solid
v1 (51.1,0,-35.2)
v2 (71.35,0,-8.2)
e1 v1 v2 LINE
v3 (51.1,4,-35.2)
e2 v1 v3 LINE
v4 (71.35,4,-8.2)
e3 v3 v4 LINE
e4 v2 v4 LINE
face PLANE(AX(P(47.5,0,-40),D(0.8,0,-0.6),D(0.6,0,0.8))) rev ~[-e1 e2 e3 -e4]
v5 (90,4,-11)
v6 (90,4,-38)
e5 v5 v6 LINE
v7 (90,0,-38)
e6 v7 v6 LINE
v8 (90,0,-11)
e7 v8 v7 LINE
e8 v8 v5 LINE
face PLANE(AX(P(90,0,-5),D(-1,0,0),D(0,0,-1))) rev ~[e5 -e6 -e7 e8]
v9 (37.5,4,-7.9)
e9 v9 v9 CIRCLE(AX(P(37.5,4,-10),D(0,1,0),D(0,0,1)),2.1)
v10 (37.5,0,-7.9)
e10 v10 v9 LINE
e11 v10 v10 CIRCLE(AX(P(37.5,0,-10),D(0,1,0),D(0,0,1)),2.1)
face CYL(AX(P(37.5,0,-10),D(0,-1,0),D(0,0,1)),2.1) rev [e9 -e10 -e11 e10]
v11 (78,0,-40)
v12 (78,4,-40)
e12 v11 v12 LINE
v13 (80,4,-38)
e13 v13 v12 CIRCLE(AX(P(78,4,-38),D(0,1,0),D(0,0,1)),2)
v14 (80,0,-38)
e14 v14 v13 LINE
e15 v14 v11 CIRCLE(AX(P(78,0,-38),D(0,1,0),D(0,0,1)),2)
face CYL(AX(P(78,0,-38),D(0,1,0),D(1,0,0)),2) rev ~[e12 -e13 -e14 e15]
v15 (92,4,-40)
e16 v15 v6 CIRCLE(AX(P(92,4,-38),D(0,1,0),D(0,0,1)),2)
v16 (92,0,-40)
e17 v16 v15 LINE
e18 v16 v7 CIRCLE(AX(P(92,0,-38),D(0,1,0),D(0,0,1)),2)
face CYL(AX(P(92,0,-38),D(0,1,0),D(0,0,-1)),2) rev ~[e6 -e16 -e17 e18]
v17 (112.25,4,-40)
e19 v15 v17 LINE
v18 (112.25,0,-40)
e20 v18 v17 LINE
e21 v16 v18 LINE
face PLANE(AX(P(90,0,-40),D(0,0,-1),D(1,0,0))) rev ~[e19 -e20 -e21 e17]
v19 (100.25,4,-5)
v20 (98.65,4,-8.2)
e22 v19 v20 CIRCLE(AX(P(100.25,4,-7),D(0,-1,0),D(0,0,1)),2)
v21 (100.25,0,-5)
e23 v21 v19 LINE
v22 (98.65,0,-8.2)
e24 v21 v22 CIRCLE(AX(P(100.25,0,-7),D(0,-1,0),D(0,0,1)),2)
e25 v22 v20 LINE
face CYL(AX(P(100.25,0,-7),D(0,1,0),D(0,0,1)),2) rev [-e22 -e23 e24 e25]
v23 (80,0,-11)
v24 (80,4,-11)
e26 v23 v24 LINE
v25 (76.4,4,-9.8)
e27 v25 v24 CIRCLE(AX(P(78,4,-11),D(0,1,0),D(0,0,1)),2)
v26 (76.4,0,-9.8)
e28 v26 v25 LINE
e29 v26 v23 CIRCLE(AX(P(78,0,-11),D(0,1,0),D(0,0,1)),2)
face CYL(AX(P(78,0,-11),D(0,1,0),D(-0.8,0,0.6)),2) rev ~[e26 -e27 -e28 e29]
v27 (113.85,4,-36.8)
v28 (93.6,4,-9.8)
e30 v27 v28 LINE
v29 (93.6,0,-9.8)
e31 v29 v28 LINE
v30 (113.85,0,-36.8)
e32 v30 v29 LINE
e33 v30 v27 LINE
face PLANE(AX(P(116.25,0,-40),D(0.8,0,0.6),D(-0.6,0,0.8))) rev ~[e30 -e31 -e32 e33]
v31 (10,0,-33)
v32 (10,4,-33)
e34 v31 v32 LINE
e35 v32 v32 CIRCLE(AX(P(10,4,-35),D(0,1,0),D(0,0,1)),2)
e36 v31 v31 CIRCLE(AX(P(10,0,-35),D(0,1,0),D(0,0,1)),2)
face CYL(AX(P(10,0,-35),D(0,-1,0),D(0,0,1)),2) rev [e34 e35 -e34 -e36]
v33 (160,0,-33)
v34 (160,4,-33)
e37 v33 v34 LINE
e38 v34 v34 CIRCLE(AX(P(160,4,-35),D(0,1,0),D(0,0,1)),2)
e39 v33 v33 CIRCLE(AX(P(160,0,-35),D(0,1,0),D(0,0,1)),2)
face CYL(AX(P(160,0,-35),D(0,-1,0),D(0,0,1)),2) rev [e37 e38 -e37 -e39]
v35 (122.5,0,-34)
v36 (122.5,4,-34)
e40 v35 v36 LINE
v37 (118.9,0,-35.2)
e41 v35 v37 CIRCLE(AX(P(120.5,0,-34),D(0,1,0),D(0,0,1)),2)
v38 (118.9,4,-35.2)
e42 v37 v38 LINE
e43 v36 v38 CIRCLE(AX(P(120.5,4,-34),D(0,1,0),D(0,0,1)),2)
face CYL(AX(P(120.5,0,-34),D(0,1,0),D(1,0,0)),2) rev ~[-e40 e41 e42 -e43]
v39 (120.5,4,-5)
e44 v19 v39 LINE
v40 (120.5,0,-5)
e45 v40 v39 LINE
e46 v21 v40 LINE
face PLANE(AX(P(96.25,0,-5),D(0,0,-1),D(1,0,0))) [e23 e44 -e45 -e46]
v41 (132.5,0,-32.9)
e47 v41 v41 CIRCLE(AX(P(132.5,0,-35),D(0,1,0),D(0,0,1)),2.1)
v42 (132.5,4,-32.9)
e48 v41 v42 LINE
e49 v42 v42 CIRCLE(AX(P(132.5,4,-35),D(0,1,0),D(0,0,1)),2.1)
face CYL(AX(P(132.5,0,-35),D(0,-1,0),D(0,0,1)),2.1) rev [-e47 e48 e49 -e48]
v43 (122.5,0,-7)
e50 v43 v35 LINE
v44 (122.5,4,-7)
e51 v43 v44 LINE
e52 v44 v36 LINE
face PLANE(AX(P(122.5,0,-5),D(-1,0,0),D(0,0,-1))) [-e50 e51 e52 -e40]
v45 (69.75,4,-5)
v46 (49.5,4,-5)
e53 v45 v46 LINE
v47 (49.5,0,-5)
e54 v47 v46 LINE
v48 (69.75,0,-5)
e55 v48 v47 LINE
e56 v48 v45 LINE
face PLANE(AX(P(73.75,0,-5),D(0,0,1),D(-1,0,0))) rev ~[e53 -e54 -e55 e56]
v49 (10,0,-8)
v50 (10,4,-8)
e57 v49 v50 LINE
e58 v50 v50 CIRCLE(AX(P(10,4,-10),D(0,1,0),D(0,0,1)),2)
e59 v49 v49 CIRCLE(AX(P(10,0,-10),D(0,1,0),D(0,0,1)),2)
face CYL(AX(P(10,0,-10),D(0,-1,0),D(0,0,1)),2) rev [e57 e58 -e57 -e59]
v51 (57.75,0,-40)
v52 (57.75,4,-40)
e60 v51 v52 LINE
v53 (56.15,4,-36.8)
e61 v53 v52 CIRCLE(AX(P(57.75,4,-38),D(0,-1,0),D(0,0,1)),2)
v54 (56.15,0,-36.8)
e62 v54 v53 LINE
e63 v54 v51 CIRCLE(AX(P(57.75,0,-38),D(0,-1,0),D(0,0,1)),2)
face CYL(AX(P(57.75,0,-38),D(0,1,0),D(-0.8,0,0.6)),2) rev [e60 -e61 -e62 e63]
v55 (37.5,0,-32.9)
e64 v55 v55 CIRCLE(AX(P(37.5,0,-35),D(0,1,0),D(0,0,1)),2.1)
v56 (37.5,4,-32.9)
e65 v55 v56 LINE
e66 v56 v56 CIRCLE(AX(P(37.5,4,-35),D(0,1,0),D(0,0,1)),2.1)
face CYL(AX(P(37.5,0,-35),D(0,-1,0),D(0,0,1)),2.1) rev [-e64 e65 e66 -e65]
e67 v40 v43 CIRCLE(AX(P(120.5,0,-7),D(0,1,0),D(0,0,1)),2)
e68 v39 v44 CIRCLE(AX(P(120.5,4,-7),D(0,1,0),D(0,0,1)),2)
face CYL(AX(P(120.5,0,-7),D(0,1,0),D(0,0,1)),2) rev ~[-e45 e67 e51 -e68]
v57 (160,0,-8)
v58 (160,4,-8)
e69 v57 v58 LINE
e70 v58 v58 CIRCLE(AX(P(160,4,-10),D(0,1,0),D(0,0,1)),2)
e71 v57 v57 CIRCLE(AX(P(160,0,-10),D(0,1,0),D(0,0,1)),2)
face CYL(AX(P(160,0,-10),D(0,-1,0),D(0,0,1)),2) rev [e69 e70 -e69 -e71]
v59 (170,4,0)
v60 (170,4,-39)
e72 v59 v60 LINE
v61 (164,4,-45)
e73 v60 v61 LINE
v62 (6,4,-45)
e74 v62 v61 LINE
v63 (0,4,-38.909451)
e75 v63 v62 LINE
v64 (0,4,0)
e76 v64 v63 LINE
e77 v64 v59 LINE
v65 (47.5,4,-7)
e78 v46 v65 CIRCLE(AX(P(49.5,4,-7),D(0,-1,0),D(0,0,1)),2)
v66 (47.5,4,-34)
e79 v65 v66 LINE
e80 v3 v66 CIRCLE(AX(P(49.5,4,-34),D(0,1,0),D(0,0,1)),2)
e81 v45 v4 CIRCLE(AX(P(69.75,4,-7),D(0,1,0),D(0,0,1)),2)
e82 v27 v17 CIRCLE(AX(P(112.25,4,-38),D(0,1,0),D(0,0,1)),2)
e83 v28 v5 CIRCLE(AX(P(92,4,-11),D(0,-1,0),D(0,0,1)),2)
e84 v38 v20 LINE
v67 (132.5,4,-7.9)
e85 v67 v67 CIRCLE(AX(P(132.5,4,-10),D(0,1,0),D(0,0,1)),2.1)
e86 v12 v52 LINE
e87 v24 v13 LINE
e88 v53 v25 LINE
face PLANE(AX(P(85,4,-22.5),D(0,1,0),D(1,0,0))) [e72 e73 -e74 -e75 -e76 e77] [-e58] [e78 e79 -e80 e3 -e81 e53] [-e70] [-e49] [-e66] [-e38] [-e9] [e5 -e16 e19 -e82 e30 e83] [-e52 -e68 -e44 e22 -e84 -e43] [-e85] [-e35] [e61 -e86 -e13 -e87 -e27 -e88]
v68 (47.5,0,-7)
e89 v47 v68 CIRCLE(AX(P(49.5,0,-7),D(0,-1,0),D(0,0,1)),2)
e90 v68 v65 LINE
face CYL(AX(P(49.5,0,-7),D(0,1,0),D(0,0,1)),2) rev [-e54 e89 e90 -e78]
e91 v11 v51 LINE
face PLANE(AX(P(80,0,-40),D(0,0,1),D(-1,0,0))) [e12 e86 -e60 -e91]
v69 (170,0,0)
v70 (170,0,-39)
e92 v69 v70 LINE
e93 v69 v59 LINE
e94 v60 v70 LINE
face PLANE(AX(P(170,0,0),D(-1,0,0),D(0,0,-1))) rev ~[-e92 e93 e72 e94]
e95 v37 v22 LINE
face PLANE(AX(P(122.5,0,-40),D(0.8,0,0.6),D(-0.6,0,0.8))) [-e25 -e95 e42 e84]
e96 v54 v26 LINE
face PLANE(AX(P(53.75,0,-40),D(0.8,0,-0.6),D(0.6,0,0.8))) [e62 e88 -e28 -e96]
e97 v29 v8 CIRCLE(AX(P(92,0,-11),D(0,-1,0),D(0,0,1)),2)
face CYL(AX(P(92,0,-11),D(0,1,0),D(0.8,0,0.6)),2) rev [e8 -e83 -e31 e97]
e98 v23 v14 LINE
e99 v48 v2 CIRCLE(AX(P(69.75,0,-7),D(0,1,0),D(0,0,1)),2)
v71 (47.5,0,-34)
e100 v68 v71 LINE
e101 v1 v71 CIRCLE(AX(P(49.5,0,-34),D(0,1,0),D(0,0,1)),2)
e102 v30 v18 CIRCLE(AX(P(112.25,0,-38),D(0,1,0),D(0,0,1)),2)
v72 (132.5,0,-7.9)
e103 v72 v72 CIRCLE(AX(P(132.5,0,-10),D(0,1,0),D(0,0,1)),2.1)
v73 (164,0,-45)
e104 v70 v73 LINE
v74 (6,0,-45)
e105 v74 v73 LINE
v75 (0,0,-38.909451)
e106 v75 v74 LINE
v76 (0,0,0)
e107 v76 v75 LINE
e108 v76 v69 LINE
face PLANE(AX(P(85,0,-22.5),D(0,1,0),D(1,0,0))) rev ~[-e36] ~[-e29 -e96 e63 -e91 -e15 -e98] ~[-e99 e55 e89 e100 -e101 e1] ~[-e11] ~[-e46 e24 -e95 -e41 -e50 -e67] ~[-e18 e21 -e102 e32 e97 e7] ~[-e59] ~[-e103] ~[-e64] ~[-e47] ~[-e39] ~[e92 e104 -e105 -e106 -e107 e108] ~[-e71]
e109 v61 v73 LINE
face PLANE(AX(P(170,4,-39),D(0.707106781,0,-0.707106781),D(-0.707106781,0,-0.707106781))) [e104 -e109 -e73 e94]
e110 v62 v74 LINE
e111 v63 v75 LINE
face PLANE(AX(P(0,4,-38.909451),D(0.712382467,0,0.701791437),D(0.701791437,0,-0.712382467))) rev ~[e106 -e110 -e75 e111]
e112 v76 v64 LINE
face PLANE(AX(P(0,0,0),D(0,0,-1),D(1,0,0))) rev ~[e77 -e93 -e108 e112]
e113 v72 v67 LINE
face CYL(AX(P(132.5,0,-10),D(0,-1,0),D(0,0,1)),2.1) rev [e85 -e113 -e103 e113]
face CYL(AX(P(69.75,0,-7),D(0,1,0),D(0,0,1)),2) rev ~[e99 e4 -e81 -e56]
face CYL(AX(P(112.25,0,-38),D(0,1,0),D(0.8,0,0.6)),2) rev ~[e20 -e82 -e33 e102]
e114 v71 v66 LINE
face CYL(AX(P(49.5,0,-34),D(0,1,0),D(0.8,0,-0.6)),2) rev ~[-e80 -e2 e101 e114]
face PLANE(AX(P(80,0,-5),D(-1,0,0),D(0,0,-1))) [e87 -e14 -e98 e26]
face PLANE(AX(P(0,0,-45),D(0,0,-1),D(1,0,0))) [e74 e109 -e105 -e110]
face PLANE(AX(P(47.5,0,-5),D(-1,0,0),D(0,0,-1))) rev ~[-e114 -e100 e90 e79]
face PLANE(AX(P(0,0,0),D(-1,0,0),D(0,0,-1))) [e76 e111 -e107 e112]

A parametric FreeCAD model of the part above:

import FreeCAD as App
import Part
import Sketcher


def edges_at(feature, points):
    """Names of the edges that pass closest to the given points."""
    edges = feature.Shape.Edges
    near = lambda p: min(range(len(edges)), key=lambda i: edges[i].distToShape(Part.Vertex(*p))[0])
    return sorted({f"Edge{near(p) + 1}" for p in points})


def add_polygon(sketch, points):
    """Adds a closed chain of lines whose ends are joined by coincident constraints."""
    first, n = sketch.GeometryCount, len(points)
    for a, b in zip(points, points[1:] + points[:1]):
        sketch.addGeometry(Part.LineSegment(App.Vector(*a, 0), App.Vector(*b, 0)), False)
    for i in range(n):
        sketch.addConstraint(Sketcher.Constraint("Coincident", first + i, 2, first + (i + 1) % n, 1))

doc = App.newDocument("Part")
body = doc.addObject("PartDesign::Body", "Body")

# Sketch on XZ plane
sketch1 = body.newObject("Sketcher::SketchObject", "Sketch")
sketch1.AttachmentSupport = (doc.getObject("XZ_Plane"), [""])
sketch1.MapMode = "FlatFace"
add_polygon(sketch1, [(0, -45), (0, 0), (170, 0), (170, -45)])  # lines 0-3
sketch1.addGeometry(Part.Circle(App.Vector(10, -10, 0), App.Vector(0, 0, 1), 2), False)  # 4
sketch1.addGeometry(Part.Circle(App.Vector(37.5, -10, 0), App.Vector(0, 0, 1), 2.1), False)  # 5
sketch1.addGeometry(Part.Circle(App.Vector(132.5, -10, 0), App.Vector(0, 0, 1), 2.1), False)  # 6
sketch1.addGeometry(Part.Circle(App.Vector(160, -10, 0), App.Vector(0, 0, 1), 2), False)  # 7
sketch1.addGeometry(Part.Circle(App.Vector(10, -35, 0), App.Vector(0, 0, 1), 2), False)  # 8
sketch1.addGeometry(Part.Circle(App.Vector(37.5, -35, 0), App.Vector(0, 0, 1), 2.1), False)  # 9
sketch1.addGeometry(Part.Circle(App.Vector(132.5, -35, 0), App.Vector(0, 0, 1), 2.1), False)  # 10
sketch1.addGeometry(Part.Circle(App.Vector(160, -35, 0), App.Vector(0, 0, 1), 2), False)  # 11
sketch1.addConstraint([
    Sketcher.Constraint("Vertical", 0),
    Sketcher.Constraint("Horizontal", 1),
    Sketcher.Constraint("Vertical", 2),
    Sketcher.Constraint("Horizontal", 3),
    Sketcher.Constraint("Coincident", 0, 2, -1, 1),
    Sketcher.Constraint("Equal", 5, 6),
    Sketcher.Constraint("Equal", 4, 7),
    Sketcher.Constraint("Equal", 7, 8),
    Sketcher.Constraint("Equal", 6, 9),
    Sketcher.Constraint("Equal", 9, 10),
    Sketcher.Constraint("Equal", 8, 11),
    Sketcher.Constraint("Horizontal", 4, 3, 5, 3),
    Sketcher.Constraint("Horizontal", 5, 3, 6, 3),
    Sketcher.Constraint("Horizontal", 6, 3, 7, 3),
    Sketcher.Constraint("Horizontal", 8, 3, 9, 3),
    Sketcher.Constraint("Horizontal", 9, 3, 10, 3),
    Sketcher.Constraint("Horizontal", 10, 3, 11, 3),
    Sketcher.Constraint("Vertical", 4, 3, 8, 3),
    Sketcher.Constraint("Vertical", 5, 3, 9, 3),
    Sketcher.Constraint("Vertical", 6, 3, 10, 3),
    Sketcher.Constraint("Vertical", 7, 3, 11, 3),
    Sketcher.Constraint("Diameter", 4, 4.0),
    Sketcher.Constraint("Diameter", 5, 4.2),
    Sketcher.Constraint("DistanceX", 1, 1, 1, 2, 170.0),
    Sketcher.Constraint("DistanceY", 0, 1, 0, 2, 45.0),
    Sketcher.Constraint("DistanceX", -1, 1, 4, 3, 10.0),
    Sketcher.Constraint("DistanceY", 4, 3, -1, 1, 10.0),
    Sketcher.Constraint("DistanceX", -1, 1, 7, 3, 160.0),
    Sketcher.Constraint("DistanceY", 8, 3, -1, 1, 35.0),
    Sketcher.Constraint("DistanceX", 5, 3, 6, 3, 95.0),
    Sketcher.Constraint("DistanceX", -1, 1, 5, 3, 37.5),
])
pad1 = body.newObject("PartDesign::Pad", "Pad")
pad1.Profile = sketch1
pad1.Length = 4
pad1.Reversed = True

# Sketch on XZ plane
sketch2 = body.newObject("Sketcher::SketchObject", "Sketch001")
sketch2.AttachmentSupport = (doc.getObject("XZ_Plane"), [""])
sketch2.MapMode = "FlatFace"
sketch2.AttachmentOffset = App.Placement(App.Vector(0, 0, -4), App.Rotation())
add_polygon(sketch2, [(0, -39), (6, -45), (0, -45)])  # lines 0-2
add_polygon(sketch2, [(164, -45), (170, -39), (170, -45)])  # lines 3-5
sketch2.addConstraint([
    Sketcher.Constraint("Horizontal", 1),
    Sketcher.Constraint("Vertical", 2),
    Sketcher.Constraint("Vertical", 4),
    Sketcher.Constraint("Horizontal", 5),
    Sketcher.Constraint("PointOnObject", 1, 2, -2),
    Sketcher.Constraint("Horizontal", 1, 2, 4, 2),
    Sketcher.Constraint("Equal", 1, 5),
    Sketcher.Constraint("Equal", 5, 4),
    Sketcher.Constraint("DistanceX", 1, 2, 1, 1, 6.0),
    Sketcher.Constraint("DistanceY", 0, 2, -1, 1, 45.0),
    Sketcher.Constraint("DistanceX", -1, 1, 3, 2, 170.0),
    Sketcher.Constraint("DistanceY", 2, 1, 2, 2, 6.090549),
])
pocket1 = body.newObject("PartDesign::Pocket", "Pocket")
pocket1.Profile = sketch2
pocket1.Length = 4
pocket1.Reversed = True

# Sketch on XZ plane
sketch3 = body.newObject("Sketcher::SketchObject", "Sketch002")
sketch3.AttachmentSupport = (doc.getObject("XZ_Plane"), [""])
sketch3.MapMode = "FlatFace"
add_polygon(sketch3, [(48, -5), (48, -40), (74, -5)])  # lines 0-2
add_polygon(sketch3, [(80, -5), (54, -40), (80, -40)])  # lines 3-5
add_polygon(sketch3, [(90, -5), (90, -40), (116, -40)])  # lines 6-8
add_polygon(sketch3, [(122, -5), (96, -5), (122, -40)])  # lines 9-11
sketch3.addConstraint([
    Sketcher.Constraint("Vertical", 0),
    Sketcher.Constraint("Horizontal", 2),
    Sketcher.Constraint("Horizontal", 4),
    Sketcher.Constraint("Vertical", 5),
    Sketcher.Constraint("Vertical", 6),
    Sketcher.Constraint("Horizontal", 7),
    Sketcher.Constraint("Horizontal", 9),
    Sketcher.Constraint("Vertical", 11),
    Sketcher.Constraint("Parallel", 1, 3),
    Sketcher.Constraint("Parallel", 8, 10),
    Sketcher.Constraint("Horizontal", 0, 2, 3, 2),
    Sketcher.Constraint("Horizontal", 2, 2, 5, 2),
    Sketcher.Constraint("Horizontal", 4, 2, 6, 2),
    Sketcher.Constraint("Horizontal", 5, 2, 8, 2),
    Sketcher.Constraint("Horizontal", 8, 2, 9, 2),
    Sketcher.Constraint("Horizontal", 7, 2, 10, 2),
    Sketcher.Constraint("Equal", 4, 7),
    Sketcher.Constraint("DistanceY", 0, 2, 0, 1, 35.0),
    Sketcher.Constraint("DistanceY", 0, 2, -1, 1, 40.0),
    Sketcher.Constraint("DistanceX", -1, 1, 4, 2, 80.0),
    Sketcher.Constraint("DistanceX", -1, 1, 6, 2, 90.0),
    Sketcher.Constraint("DistanceX", 3, 2, 1, 2, 20.0),
    Sketcher.Constraint("DistanceX", 2, 2, 2, 1, 26.25),
    Sketcher.Constraint("DistanceX", -1, 1, 10, 2, 122.5),
])
pocket2 = body.newObject("PartDesign::Pocket", "Pocket001")
pocket2.Profile = sketch3
pocket2.Length = 4
doc.recompute()

fillet = body.newObject("PartDesign::Fillet", "Fillet")
fillet.Base = (pocket2, edges_at(pocket2, [
    (80, 2, -5),
    (53.75, 2, -40),
    (80, 2, -40),
    (90, 2, -40),
    (116.25, 2, -40),
    (90, 2, -5),
    (122.5, 2, -5),
    (96.25, 2, -5),
    (122.5, 2, -40),
    (47.5, 2, -40),
    (73.75, 2, -5),
    (47.5, 2, -5),
]))
fillet.Radius = 2

doc.recompute()
